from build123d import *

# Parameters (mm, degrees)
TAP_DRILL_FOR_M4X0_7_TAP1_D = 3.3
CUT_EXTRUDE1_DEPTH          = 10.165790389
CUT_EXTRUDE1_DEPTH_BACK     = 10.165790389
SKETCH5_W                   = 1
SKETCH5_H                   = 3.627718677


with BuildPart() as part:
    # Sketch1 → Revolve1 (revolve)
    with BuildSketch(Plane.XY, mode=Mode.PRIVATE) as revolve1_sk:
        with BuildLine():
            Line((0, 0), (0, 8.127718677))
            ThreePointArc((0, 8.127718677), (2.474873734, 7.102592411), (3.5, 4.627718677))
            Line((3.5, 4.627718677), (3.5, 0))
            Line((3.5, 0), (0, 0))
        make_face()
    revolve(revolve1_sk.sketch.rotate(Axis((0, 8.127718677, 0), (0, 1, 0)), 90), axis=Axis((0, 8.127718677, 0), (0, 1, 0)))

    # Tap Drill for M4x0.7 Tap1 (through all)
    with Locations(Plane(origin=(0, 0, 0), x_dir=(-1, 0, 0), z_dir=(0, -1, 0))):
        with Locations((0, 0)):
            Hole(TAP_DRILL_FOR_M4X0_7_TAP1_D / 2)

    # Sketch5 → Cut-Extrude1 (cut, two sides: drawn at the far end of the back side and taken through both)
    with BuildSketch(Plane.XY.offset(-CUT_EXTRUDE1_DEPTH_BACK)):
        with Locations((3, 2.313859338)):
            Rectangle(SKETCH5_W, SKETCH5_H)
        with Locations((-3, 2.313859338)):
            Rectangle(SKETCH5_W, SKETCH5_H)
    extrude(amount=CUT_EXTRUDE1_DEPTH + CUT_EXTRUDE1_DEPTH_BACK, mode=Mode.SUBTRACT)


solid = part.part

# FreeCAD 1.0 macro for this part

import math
import FreeCAD as App
import Part
import Sketcher

doc = App.newDocument("Part")
body = doc.addObject("PartDesign::Body", "Body")

sketch1 = body.newObject("Sketcher::SketchObject", "Sketch")
sketch1.AttachmentSupport = (doc.getObject("XY_Plane"), [""])
sketch1.MapMode = "FlatFace"
sketch1.addGeometry([
    Part.LineSegment(App.Vector(0, 8.1, 0), App.Vector(0, 0, 0)),
    Part.LineSegment(App.Vector(0, 0, 0), App.Vector(3.5, 0, 0)),
    Part.LineSegment(App.Vector(3.5, 0, 0), App.Vector(3.5, 4.6, 0)),
    Part.ArcOfCircle(Part.Circle(App.Vector(0, 4.6, 0), App.Vector(0, 0, 1), 3.5), math.radians(0), math.radians(90)),
], False)
sketch1.addConstraint([
    Sketcher.Constraint("Coincident", 0, 2, 1, 1),
    Sketcher.Constraint("Coincident", 1, 2, 2, 1),
    Sketcher.Constraint("Tangent", 2, 2, 3, 1),
    Sketcher.Constraint("Coincident", 3, 2, 0, 1),
    Sketcher.Constraint("Vertical", 0),
    Sketcher.Constraint("Horizontal", 1),
    Sketcher.Constraint("Vertical", 2),
    Sketcher.Constraint("Coincident", 0, 2, -1, 1),
    Sketcher.Constraint("PointOnObject", 3, 3, -2),
    Sketcher.Constraint("Radius", 3, 3.5),
    Sketcher.Constraint("DistanceY", 0, 2, 0, 1, 8.127719),
])
revolution = body.newObject("PartDesign::Revolution", "Revolution")
revolution.Profile = sketch1
revolution.ReferenceAxis = (sketch1, ["V_Axis"])
revolution.Angle = 360

sketch2 = body.newObject("Sketcher::SketchObject", "Sketch001")
sketch2.AttachmentSupport = (doc.getObject("XZ_Plane"), [""])
sketch2.MapMode = "FlatFace"
sketch2.addGeometry(Part.Circle(App.Vector(0, 0, 0), App.Vector(0, 0, 1), 1.6), False)
sketch2.addConstraint([
    Sketcher.Constraint("Coincident", 0, 3, -1, 1),
    Sketcher.Constraint("Diameter", 0, 3.3),
])
doc.recompute()
hole = body.newObject("PartDesign::Hole", "Hole")
hole.Profile = sketch2
hole.ThreadType = "None"
hole.Diameter = 3.3
hole.DepthType = "ThroughAll"

sketch3 = body.newObject("Sketcher::SketchObject", "Sketch002")
sketch3.AttachmentSupport = (doc.getObject("XY_Plane"), [""])
sketch3.MapMode = "FlatFace"
sketch3.addGeometry([
    Part.LineSegment(App.Vector(2.5, 4.1, 0), App.Vector(2.5, 0.5, 0)),
    Part.LineSegment(App.Vector(2.5, 0.5, 0), App.Vector(3.5, 0.5, 0)),
    Part.LineSegment(App.Vector(3.5, 0.5, 0), App.Vector(3.5, 4.1, 0)),
    Part.LineSegment(App.Vector(3.5, 4.1, 0), App.Vector(2.5, 4.1, 0)),
    Part.LineSegment(App.Vector(-3.5, 4.1, 0), App.Vector(-3.5, 0.5, 0)),
    Part.LineSegment(App.Vector(-3.5, 0.5, 0), App.Vector(-2.5, 0.5, 0)),
    Part.LineSegment(App.Vector(-2.5, 0.5, 0), App.Vector(-2.5, 4.1, 0)),
    Part.LineSegment(App.Vector(-2.5, 4.1, 0), App.Vector(-3.5, 4.1, 0)),
], False)
sketch3.addConstraint([
    Sketcher.Constraint("Coincident", 0, 2, 1, 1),
    Sketcher.Constraint("Coincident", 1, 2, 2, 1),
    Sketcher.Constraint("Coincident", 2, 2, 3, 1),
    Sketcher.Constraint("Coincident", 3, 2, 0, 1),
    Sketcher.Constraint("Coincident", 4, 2, 5, 1),
    Sketcher.Constraint("Coincident", 5, 2, 6, 1),
    Sketcher.Constraint("Coincident", 6, 2, 7, 1),
    Sketcher.Constraint("Coincident", 7, 2, 4, 1),
    Sketcher.Constraint("Vertical", 0),
    Sketcher.Constraint("Horizontal", 1),
    Sketcher.Constraint("Vertical", 2),
    Sketcher.Constraint("Horizontal", 3),
    Sketcher.Constraint("Vertical", 4),
    Sketcher.Constraint("Horizontal", 5),
    Sketcher.Constraint("Vertical", 6),
    Sketcher.Constraint("Horizontal", 7),
    Sketcher.Constraint("Symmetric", 1, 2, 4, 2, -2),
    Sketcher.Constraint("Symmetric", 3, 2, 6, 2, -2),
    Sketcher.Constraint("DistanceX", 1, 1, 1, 2, 1.0),
    Sketcher.Constraint("DistanceX", 4, 2, 0, 2, 6.0),
    Sketcher.Constraint("DistanceY", -1, 1, 0, 2, 0.5),
    Sketcher.Constraint("DistanceY", 0, 2, 0, 1, 3.627719),
])
pocket1 = body.newObject("PartDesign::Pocket", "Pocket")
pocket1.Profile = sketch3
pocket1.Type = "ThroughAll"
pocket1.Midplane = True

doc.recompute()
